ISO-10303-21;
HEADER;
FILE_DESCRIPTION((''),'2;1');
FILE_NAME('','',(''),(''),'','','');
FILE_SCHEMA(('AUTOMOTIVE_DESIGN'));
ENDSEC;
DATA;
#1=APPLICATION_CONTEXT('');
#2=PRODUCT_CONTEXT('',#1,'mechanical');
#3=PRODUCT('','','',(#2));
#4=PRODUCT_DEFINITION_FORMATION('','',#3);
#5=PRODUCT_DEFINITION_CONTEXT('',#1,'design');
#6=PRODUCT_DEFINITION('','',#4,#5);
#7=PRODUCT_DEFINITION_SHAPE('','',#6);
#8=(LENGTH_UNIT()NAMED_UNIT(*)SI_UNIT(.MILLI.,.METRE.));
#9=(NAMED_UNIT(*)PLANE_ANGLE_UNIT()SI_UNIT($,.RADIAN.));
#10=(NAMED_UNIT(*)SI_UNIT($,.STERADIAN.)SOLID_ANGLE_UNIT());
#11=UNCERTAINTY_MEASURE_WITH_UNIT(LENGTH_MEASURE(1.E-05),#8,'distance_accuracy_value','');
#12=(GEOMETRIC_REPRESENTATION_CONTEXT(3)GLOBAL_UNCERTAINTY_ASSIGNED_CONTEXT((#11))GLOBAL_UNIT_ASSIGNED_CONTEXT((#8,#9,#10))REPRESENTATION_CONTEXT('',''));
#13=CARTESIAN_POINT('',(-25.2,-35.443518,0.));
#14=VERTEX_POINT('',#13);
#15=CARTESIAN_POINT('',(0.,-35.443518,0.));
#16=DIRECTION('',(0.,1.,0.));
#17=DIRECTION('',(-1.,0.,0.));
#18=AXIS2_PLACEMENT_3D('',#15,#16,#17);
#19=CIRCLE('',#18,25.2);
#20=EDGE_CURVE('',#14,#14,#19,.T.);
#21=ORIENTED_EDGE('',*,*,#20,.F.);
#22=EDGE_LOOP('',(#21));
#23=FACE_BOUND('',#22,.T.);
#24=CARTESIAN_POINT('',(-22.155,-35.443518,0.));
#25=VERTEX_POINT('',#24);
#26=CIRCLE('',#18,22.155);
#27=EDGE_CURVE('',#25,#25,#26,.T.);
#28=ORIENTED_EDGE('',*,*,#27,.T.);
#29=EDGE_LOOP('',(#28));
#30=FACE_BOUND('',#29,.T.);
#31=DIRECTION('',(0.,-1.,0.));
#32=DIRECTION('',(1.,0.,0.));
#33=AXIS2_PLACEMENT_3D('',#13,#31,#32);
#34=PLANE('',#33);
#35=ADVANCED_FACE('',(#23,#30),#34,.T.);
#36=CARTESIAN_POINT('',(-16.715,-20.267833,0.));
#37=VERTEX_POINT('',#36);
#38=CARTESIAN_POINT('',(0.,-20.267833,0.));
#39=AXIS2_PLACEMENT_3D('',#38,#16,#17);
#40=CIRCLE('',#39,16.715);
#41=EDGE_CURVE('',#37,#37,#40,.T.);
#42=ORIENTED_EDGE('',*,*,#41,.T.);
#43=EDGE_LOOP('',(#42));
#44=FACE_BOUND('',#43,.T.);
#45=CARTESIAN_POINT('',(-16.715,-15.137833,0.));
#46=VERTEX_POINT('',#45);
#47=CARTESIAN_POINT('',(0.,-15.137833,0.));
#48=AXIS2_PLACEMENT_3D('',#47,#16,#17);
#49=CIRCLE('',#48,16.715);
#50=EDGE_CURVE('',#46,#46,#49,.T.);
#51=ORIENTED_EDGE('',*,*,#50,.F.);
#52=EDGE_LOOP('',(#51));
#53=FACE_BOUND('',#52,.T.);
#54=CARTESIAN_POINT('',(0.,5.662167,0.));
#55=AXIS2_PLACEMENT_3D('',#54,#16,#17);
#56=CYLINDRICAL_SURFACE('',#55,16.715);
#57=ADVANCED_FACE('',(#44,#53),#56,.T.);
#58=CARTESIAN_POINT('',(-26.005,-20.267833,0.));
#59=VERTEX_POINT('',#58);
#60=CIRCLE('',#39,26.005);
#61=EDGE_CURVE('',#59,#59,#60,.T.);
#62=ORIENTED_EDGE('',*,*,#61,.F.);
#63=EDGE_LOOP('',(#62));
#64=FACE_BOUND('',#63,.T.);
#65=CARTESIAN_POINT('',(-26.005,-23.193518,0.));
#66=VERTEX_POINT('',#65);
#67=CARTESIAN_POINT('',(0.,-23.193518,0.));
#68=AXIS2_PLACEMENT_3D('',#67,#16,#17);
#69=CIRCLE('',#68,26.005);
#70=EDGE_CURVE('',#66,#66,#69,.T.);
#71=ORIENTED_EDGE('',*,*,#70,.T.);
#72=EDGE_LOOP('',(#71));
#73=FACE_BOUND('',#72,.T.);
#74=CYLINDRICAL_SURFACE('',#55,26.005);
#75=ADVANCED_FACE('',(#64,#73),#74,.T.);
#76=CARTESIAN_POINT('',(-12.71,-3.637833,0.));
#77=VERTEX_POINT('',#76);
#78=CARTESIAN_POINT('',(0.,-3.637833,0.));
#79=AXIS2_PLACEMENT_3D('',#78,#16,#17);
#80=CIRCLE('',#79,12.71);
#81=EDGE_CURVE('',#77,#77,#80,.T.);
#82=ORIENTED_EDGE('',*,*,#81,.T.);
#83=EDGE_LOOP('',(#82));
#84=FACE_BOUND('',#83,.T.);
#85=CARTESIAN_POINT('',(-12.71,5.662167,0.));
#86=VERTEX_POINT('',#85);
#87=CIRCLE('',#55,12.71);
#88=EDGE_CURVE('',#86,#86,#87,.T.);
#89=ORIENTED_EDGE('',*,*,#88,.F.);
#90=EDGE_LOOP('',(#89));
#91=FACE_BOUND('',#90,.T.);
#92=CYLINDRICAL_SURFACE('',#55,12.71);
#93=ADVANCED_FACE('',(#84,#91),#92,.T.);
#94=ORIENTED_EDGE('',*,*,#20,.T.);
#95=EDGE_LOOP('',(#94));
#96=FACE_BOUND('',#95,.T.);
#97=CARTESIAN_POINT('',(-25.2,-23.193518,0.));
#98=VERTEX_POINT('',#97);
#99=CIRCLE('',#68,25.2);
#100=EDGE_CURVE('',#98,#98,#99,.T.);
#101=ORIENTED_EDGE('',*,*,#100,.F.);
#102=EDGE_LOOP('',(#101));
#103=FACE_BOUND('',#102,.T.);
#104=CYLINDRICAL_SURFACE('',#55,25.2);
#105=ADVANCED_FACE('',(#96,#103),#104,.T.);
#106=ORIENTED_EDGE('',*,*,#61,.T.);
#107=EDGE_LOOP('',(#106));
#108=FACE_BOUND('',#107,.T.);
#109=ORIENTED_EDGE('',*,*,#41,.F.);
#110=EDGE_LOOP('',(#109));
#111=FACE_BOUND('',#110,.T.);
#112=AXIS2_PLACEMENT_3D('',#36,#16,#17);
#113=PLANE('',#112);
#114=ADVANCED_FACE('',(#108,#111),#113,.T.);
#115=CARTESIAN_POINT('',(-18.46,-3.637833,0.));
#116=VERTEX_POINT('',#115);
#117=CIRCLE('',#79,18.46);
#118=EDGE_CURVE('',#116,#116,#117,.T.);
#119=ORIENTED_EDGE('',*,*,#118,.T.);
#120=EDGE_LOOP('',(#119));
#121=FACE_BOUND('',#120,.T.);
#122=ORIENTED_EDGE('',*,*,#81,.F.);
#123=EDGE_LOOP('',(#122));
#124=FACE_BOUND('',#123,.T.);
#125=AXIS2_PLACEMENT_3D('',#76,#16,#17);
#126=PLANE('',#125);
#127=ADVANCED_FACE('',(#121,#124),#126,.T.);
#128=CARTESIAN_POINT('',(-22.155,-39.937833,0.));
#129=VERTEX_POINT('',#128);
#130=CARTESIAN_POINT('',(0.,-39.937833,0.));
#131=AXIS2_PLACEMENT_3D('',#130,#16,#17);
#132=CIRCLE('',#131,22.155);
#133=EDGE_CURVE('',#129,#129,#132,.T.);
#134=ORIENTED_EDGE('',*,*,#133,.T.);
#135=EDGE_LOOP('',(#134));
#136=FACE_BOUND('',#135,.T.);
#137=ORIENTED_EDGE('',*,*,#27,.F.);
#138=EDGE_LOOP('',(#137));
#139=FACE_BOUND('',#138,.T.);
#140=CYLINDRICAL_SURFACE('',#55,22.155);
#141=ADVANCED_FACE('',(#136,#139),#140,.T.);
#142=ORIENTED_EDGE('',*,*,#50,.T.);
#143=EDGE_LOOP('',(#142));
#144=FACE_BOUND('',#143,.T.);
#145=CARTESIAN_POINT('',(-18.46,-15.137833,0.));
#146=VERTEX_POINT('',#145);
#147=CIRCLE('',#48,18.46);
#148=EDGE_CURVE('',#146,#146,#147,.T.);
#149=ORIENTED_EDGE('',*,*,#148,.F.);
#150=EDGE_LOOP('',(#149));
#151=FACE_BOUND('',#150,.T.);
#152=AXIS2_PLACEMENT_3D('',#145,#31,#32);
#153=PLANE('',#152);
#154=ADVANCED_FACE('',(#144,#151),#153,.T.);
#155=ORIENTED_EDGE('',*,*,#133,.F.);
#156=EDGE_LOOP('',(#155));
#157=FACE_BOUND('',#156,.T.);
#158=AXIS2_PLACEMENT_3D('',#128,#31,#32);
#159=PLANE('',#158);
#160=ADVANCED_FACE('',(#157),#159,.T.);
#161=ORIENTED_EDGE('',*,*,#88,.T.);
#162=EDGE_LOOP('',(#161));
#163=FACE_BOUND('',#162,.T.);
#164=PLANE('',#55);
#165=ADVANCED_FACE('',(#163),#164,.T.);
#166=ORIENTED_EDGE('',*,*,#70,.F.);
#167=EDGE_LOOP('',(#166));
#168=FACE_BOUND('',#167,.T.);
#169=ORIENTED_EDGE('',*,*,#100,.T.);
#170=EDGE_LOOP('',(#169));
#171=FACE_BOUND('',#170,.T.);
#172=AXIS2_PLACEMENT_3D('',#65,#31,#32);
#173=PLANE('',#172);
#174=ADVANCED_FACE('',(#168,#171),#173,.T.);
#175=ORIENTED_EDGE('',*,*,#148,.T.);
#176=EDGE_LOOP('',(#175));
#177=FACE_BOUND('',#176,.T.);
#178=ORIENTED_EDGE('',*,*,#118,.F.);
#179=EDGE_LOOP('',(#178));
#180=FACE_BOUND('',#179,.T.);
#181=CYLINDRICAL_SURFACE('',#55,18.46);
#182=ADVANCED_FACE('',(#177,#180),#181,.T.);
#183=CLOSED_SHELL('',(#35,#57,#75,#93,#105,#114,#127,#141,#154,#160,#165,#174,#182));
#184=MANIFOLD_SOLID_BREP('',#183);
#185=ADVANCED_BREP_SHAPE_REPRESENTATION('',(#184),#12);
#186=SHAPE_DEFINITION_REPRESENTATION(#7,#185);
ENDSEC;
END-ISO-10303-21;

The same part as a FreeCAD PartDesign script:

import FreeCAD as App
import Part
import Sketcher


def add_polygon(sketch, points):
    """Adds a closed chain of lines whose ends are joined by coincident constraints."""
    first, n = sketch.GeometryCount, len(points)
    for a, b in zip(points, points[1:] + points[:1]):
        sketch.addGeometry(Part.LineSegment(App.Vector(*a, 0), App.Vector(*b, 0)), False)
    for i in range(n):
        sketch.addConstraint(Sketcher.Constraint("Coincident", first + i, 2, first + (i + 1) % n, 1))

doc = App.newDocument("Part")
body = doc.addObject("PartDesign::Body", "Body")

# Sketch on XY plane
sketch1 = body.newObject("Sketcher::SketchObject", "Sketch")
sketch1.AttachmentSupport = (doc.getObject("XY_Plane"), [""])
sketch1.MapMode = "FlatFace"
add_polygon(sketch1, [(0, -39.9), (0, 5.7), (-12.7, 5.7), (-12.7, -3.6), (-18.5, -3.6), (-18.5, -15.1), (-16.7, -15.1), (-16.7, -20.3), (-26, -20.3), (-26, -23.2), (-25.2, -23.2), (-25.2, -35.4), (-22.2, -35.4), (-22.2, -39.9)])  # lines 0-13
sketch1.addConstraint([
    Sketcher.Constraint("Vertical", 0),
    Sketcher.Constraint("Horizontal", 1),
    Sketcher.Constraint("Vertical", 2),
    Sketcher.Constraint("Horizontal", 3),
    Sketcher.Constraint("Vertical", 4),
    Sketcher.Constraint("Horizontal", 5),
    Sketcher.Constraint("Vertical", 6),
    Sketcher.Constraint("Horizontal", 7),
    Sketcher.Constraint("Vertical", 8),
    Sketcher.Constraint("Horizontal", 9),
    Sketcher.Constraint("Vertical", 10),
    Sketcher.Constraint("Horizontal", 11),
    Sketcher.Constraint("Vertical", 12),
    Sketcher.Constraint("Horizontal", 13),
    Sketcher.Constraint("PointOnObject", 0, 2, -2),
    Sketcher.Constraint("DistanceY", 0, 1, 0, 2, 45.6),
    Sketcher.Constraint("DistanceY", 2, 2, 2, 1, 9.3),
    Sketcher.Constraint("DistanceY", 4, 2, 4, 1, 11.5),
    Sketcher.Constraint("DistanceX", 1, 2, 1, 1, 12.71),
    Sketcher.Constraint("DistanceX", 3, 2, 3, 1, 5.75),
    Sketcher.Constraint("DistanceX", 7, 2, 7, 1, 9.29),
    Sketcher.Constraint("DistanceY", 6, 2, 6, 1, 5.13),
    Sketcher.Constraint("DistanceY", 10, 2, 10, 1, 12.25),
    Sketcher.Constraint("DistanceX", 9, 2, -1, 1, 25.2),
    Sketcher.Constraint("DistanceX", 5, 1, 5, 2, 1.745),
    Sketcher.Constraint("DistanceX", 11, 1, 11, 2, 3.045),
    Sketcher.Constraint("DistanceY", 8, 2, 8, 1, 2.925685),
    Sketcher.Constraint("DistanceY", 8, 2, -1, 1, 23.193518),
])
revolution = body.newObject("PartDesign::Revolution", "Revolution")
revolution.Profile = sketch1
revolution.ReferenceAxis = (sketch1, ["V_Axis"])
revolution.Angle = 360

doc.recompute()
